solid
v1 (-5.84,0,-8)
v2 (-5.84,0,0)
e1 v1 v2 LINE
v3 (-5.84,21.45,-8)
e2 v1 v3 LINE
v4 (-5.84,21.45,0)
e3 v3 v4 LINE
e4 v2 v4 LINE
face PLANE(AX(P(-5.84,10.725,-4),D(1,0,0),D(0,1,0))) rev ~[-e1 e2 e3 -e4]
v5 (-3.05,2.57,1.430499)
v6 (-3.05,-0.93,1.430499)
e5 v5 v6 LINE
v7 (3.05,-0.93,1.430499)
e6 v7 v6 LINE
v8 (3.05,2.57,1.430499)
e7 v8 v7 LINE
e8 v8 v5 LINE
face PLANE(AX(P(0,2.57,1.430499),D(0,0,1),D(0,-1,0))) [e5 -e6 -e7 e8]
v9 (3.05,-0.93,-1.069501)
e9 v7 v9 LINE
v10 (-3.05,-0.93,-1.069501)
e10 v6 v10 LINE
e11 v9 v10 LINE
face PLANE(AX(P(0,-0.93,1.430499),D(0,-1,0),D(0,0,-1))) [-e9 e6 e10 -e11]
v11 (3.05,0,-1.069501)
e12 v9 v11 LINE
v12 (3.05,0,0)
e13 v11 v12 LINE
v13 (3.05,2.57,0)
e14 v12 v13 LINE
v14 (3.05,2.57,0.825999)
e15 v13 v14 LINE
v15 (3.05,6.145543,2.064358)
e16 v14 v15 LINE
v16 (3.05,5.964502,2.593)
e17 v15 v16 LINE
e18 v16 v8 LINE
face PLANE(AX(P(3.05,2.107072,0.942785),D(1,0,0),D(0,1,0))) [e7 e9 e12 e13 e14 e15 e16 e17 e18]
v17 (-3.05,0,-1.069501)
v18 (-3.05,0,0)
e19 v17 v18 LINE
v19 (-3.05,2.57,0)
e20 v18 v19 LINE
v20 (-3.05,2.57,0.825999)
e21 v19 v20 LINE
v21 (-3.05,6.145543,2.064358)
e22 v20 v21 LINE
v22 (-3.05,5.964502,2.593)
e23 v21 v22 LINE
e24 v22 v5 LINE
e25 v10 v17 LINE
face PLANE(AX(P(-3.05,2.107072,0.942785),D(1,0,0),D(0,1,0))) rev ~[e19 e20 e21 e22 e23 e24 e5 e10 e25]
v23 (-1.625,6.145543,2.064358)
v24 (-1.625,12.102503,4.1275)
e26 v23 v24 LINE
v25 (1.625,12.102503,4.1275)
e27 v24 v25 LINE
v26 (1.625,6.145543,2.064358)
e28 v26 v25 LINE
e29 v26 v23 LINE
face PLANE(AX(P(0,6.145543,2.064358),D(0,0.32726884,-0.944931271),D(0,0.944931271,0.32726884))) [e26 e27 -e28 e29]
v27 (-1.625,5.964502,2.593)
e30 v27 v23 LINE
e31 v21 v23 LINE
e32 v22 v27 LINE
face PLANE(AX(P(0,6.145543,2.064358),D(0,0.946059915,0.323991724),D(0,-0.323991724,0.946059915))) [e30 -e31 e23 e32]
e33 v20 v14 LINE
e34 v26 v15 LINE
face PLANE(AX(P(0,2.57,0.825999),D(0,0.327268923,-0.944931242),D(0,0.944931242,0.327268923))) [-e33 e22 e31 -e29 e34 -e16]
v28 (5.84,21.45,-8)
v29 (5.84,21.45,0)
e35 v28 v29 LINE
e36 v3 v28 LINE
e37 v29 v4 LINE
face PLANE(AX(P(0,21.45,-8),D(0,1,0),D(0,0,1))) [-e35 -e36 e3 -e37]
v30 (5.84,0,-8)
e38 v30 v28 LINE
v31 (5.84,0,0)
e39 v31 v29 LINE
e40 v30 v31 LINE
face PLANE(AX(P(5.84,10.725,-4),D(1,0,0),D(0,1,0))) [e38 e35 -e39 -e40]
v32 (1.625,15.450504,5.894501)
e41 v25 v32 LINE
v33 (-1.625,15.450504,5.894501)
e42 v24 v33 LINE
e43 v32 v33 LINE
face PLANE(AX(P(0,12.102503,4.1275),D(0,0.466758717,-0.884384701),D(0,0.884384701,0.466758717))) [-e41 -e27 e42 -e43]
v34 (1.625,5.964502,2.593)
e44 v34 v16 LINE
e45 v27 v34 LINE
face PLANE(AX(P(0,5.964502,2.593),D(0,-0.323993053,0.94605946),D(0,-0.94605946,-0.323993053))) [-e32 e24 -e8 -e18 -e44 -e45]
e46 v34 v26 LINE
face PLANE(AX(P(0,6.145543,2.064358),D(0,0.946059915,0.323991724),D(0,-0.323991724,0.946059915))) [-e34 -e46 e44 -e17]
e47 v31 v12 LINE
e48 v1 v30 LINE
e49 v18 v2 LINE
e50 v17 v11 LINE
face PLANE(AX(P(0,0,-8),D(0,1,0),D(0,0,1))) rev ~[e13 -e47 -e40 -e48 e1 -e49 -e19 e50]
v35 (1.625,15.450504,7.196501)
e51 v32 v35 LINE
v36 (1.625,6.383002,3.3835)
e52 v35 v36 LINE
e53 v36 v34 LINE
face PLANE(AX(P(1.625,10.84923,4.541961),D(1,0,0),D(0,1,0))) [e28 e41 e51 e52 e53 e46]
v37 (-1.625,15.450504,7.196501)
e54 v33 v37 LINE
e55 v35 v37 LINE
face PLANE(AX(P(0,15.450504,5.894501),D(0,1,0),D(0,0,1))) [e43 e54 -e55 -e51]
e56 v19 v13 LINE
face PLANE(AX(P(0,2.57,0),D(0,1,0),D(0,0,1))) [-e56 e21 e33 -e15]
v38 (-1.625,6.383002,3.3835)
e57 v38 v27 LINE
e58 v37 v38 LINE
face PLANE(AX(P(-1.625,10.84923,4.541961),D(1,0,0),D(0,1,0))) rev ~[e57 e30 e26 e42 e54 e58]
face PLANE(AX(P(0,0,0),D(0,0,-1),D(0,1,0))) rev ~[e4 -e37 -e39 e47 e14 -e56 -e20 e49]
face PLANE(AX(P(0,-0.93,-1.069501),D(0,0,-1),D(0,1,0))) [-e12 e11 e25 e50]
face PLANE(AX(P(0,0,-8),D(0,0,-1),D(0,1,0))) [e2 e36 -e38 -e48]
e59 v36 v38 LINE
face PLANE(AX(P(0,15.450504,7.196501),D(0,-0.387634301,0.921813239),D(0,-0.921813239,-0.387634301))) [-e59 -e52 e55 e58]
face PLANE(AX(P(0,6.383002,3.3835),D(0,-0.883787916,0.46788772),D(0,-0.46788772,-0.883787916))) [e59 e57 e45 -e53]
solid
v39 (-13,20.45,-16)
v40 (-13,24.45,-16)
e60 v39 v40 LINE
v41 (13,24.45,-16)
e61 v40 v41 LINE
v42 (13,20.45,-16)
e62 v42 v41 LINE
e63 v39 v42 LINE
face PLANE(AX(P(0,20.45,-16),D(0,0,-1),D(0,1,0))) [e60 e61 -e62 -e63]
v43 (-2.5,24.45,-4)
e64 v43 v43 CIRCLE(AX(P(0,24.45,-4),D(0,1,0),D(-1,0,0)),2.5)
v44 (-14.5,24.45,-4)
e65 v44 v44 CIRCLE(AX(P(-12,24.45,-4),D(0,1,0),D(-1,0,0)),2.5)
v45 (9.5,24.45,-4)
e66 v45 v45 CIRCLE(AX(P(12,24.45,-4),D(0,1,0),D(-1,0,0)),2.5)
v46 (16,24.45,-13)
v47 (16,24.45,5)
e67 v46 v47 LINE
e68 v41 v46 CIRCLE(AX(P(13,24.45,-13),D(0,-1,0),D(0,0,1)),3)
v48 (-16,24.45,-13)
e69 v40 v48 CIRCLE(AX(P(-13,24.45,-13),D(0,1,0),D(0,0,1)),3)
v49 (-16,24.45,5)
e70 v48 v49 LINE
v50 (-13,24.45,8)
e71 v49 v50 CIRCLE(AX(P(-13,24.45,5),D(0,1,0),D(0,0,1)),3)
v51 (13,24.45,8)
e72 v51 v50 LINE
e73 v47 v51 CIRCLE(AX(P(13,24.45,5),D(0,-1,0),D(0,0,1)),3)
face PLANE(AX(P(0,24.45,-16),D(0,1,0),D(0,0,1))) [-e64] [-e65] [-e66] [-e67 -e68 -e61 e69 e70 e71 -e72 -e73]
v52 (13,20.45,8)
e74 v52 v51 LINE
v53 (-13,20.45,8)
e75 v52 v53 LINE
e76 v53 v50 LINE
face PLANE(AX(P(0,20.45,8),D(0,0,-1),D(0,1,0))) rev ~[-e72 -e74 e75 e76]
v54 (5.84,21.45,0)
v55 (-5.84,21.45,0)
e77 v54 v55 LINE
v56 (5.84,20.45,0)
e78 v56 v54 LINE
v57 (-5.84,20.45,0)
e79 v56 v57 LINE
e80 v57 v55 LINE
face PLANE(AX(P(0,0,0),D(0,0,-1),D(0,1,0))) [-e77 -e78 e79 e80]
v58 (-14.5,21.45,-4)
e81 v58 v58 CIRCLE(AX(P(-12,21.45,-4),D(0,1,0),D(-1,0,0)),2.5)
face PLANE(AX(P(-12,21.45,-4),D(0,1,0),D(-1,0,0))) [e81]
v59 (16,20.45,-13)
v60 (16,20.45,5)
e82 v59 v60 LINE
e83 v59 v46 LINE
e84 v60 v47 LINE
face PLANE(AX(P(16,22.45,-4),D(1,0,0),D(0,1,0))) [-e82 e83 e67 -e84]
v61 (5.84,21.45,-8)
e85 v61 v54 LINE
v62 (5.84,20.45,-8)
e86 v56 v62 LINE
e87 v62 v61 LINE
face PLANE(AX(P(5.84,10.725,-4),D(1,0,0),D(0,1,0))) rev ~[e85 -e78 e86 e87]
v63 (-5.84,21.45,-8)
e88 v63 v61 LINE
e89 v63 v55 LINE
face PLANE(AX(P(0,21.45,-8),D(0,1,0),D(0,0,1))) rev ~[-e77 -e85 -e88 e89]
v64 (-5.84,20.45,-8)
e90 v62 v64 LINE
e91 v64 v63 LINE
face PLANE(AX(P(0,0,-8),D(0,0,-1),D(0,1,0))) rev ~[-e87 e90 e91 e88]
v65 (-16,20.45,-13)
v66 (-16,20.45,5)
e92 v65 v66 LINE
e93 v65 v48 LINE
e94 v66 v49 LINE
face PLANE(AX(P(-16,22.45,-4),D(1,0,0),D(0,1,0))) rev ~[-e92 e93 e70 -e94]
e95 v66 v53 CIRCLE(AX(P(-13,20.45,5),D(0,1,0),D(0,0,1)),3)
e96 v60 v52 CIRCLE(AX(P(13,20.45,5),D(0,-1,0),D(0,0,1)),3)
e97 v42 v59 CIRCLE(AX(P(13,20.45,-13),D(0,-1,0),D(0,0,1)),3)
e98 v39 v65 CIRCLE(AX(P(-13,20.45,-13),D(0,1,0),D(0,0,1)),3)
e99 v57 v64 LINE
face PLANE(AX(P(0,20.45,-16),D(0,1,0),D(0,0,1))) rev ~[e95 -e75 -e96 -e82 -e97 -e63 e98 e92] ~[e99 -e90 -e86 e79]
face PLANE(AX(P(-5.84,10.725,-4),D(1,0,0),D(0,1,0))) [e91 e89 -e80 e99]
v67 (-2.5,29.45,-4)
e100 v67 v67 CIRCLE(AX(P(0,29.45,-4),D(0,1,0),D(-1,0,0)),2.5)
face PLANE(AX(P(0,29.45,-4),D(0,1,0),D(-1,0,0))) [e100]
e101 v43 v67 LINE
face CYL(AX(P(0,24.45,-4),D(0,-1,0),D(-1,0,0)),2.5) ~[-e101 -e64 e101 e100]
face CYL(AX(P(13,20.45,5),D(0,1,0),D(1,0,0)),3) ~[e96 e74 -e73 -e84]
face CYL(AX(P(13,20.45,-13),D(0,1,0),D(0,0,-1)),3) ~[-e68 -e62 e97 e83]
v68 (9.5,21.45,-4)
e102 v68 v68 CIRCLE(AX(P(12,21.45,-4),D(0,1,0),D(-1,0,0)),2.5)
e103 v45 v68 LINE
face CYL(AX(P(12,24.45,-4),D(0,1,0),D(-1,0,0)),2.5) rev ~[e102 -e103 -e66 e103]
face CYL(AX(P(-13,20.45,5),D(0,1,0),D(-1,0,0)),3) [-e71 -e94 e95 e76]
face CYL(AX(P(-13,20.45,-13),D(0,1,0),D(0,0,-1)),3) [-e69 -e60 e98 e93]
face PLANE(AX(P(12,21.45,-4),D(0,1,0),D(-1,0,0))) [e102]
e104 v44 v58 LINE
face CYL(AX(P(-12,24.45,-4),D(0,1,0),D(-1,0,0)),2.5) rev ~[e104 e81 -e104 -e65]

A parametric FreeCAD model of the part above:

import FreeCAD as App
import Part
import Sketcher
from FreeCAD import Vector


def edges_at(feature, points):
    """Names of the edges that pass closest to the given points."""
    edges = feature.Shape.Edges
    near = lambda p: min(range(len(edges)), key=lambda i: edges[i].distToShape(Part.Vertex(*p))[0])
    return sorted({f"Edge{near(p) + 1}" for p in points})

doc = App.newDocument("Part")
body = doc.addObject("PartDesign::Body", "Body")

sketch1 = body.newObject("Sketcher::SketchObject", "Sketch")
sketch1.AttachmentSupport = (doc.getObject("YZ_Plane"), [""])
sketch1.MapMode = "FlatFace"
sketch1.addGeometry(Part.LineSegment(Vector(0, 0, 0), Vector(0, -8, 0)), False)
sketch1.addGeometry(Part.LineSegment(Vector(0, -8, 0), Vector(21, -8, 0)), False)
sketch1.addGeometry(Part.LineSegment(Vector(21, -8, 0), Vector(21, 0, 0)), False)
sketch1.addGeometry(Part.LineSegment(Vector(21, 0, 0), Vector(0, 0, 0)), False)
sketch1.addConstraint(Sketcher.Constraint("Coincident", 0, 2, 1, 1))
sketch1.addConstraint(Sketcher.Constraint("Coincident", 1, 2, 2, 1))
sketch1.addConstraint(Sketcher.Constraint("Coincident", 2, 2, 3, 1))
sketch1.addConstraint(Sketcher.Constraint("Coincident", 3, 2, 0, 1))
sketch1.addConstraint(Sketcher.Constraint("Vertical", 0))
sketch1.addConstraint(Sketcher.Constraint("Horizontal", 1))
sketch1.addConstraint(Sketcher.Constraint("Vertical", 2))
sketch1.addConstraint(Sketcher.Constraint("Horizontal", 3))
sketch1.addConstraint(Sketcher.Constraint("Coincident", 3, 2, -1, 1))
sketch1.addConstraint(Sketcher.Constraint("DistanceY", 0, 2, 0, 1, 8.0))
sketch1.addConstraint(Sketcher.Constraint("DistanceX", 1, 1, 1, 2, 21.45))
pad1 = body.newObject("PartDesign::Pad", "Pad")
pad1.Profile = sketch1
pad1.Type = "TwoLengths"
pad1.Length = 5.84
pad1.Length2 = 5.84

sketch2 = body.newObject("Sketcher::SketchObject", "Sketch001")
sketch2.AttachmentSupport = (doc.getObject("YZ_Plane"), [""])
sketch2.MapMode = "FlatFace"
sketch2.addGeometry(Part.LineSegment(Vector(-0.9, -1.1, 0), Vector(0, -1.1, 0)), False)
sketch2.addGeometry(Part.LineSegment(Vector(0, -1.1, 0), Vector(0, 0, 0)), False)
sketch2.addGeometry(Part.LineSegment(Vector(0, 0, 0), Vector(2.6, 0, 0)), False)
sketch2.addGeometry(Part.LineSegment(Vector(2.6, 0, 0), Vector(2.6, 0.8, 0)), False)
sketch2.addGeometry(Part.LineSegment(Vector(2.6, 0.8, 0), Vector(6.1, 2.1, 0)), False)
sketch2.addGeometry(Part.LineSegment(Vector(6.1, 2.1, 0), Vector(6, 2.6, 0)), False)
sketch2.addGeometry(Part.LineSegment(Vector(6, 2.6, 0), Vector(2.6, 1.4, 0)), False)
sketch2.addGeometry(Part.LineSegment(Vector(2.6, 1.4, 0), Vector(-0.9, 1.4, 0)), False)
sketch2.addGeometry(Part.LineSegment(Vector(-0.9, 1.4, 0), Vector(-0.9, -1.1, 0)), False)
sketch2.addConstraint(Sketcher.Constraint("Coincident", 0, 2, 1, 1))
sketch2.addConstraint(Sketcher.Constraint("Coincident", 1, 2, 2, 1))
sketch2.addConstraint(Sketcher.Constraint("Coincident", 2, 2, 3, 1))
sketch2.addConstraint(Sketcher.Constraint("Coincident", 3, 2, 4, 1))
sketch2.addConstraint(Sketcher.Constraint("Coincident", 4, 2, 5, 1))
sketch2.addConstraint(Sketcher.Constraint("Coincident", 5, 2, 6, 1))
sketch2.addConstraint(Sketcher.Constraint("Coincident", 6, 2, 7, 1))
sketch2.addConstraint(Sketcher.Constraint("Coincident", 7, 2, 8, 1))
sketch2.addConstraint(Sketcher.Constraint("Coincident", 8, 2, 0, 1))
sketch2.addConstraint(Sketcher.Constraint("Horizontal", 0))
sketch2.addConstraint(Sketcher.Constraint("Vertical", 1))
sketch2.addConstraint(Sketcher.Constraint("Horizontal", 2))
sketch2.addConstraint(Sketcher.Constraint("Vertical", 3))
sketch2.addConstraint(Sketcher.Constraint("Horizontal", 7))
sketch2.addConstraint(Sketcher.Constraint("Vertical", 8))
sketch2.addConstraint(Sketcher.Constraint("Coincident", 1, 2, -1, 1))
sketch2.addConstraint(Sketcher.Constraint("Perpendicular", 5, 6))
sketch2.addConstraint(Sketcher.Constraint("Vertical", 3, 2, 6, 2))
sketch2.addConstraint(Sketcher.Constraint("DistanceX", 7, 2, 7, 1, 3.5))
sketch2.addConstraint(Sketcher.Constraint("DistanceY", 8, 2, 8, 1, 2.5))
sketch2.addConstraint(Sketcher.Constraint("DistanceX", 0, 1, 0, 2, 0.93))
sketch2.addConstraint(Sketcher.Constraint("DistanceY", 3, 1, 3, 2, 0.825999))
sketch2.addConstraint(Sketcher.Constraint("DistanceY", 1, 1, 1, 2, 1.069501))
sketch2.addConstraint(Sketcher.Constraint("DistanceY", -1, 1, 5, 2, 2.593))
sketch2.addConstraint(Sketcher.Constraint("Distance", 4, 3.783919))
sketch2.addConstraint(Sketcher.Constraint("DistanceY", 3, 2, 4, 2, 1.238359))
pad2 = body.newObject("PartDesign::Pad", "Pad001")
pad2.Profile = sketch2
pad2.Type = "TwoLengths"
pad2.Length = 3.05
pad2.Length2 = 3.05

sketch3 = body.newObject("Sketcher::SketchObject", "Sketch002")
sketch3.AttachmentSupport = (doc.getObject("YZ_Plane"), [""])
sketch3.MapMode = "FlatFace"
sketch3.addGeometry(Part.LineSegment(Vector(6.4, 3.4, 0), Vector(6, 2.6, 0)), False)
sketch3.addGeometry(Part.LineSegment(Vector(6, 2.6, 0), Vector(6.1, 2.1, 0)), False)
sketch3.addGeometry(Part.LineSegment(Vector(6.1, 2.1, 0), Vector(12.1, 4.1, 0)), False)
sketch3.addGeometry(Part.LineSegment(Vector(12.1, 4.1, 0), Vector(15.5, 5.9, 0)), False)
sketch3.addGeometry(Part.LineSegment(Vector(15.5, 5.9, 0), Vector(15.5, 7.2, 0)), False)
sketch3.addGeometry(Part.LineSegment(Vector(15.5, 7.2, 0), Vector(6.4, 3.4, 0)), False)
sketch3.addConstraint(Sketcher.Constraint("Coincident", 0, 2, 1, 1))
sketch3.addConstraint(Sketcher.Constraint("Coincident", 1, 2, 2, 1))
sketch3.addConstraint(Sketcher.Constraint("Coincident", 2, 2, 3, 1))
sketch3.addConstraint(Sketcher.Constraint("Coincident", 3, 2, 4, 1))
sketch3.addConstraint(Sketcher.Constraint("Coincident", 4, 2, 5, 1))
sketch3.addConstraint(Sketcher.Constraint("Coincident", 5, 2, 0, 1))
sketch3.addConstraint(Sketcher.Constraint("Vertical", 4))
sketch3.addConstraint(Sketcher.Constraint("DistanceY", 4, 1, 4, 2, 1.302))
sketch3.addConstraint(Sketcher.Constraint("DistanceY", -1, 1, 0, 2, 2.593))
sketch3.addConstraint(Sketcher.Constraint("DistanceX", 0, 2, 2, 2, 6.138001))
sketch3.addConstraint(Sketcher.Constraint("DistanceX", 2, 2, 3, 2, 3.348001))
sketch3.addConstraint(Sketcher.Constraint("DistanceY", 2, 2, 3, 2, 1.767001))
sketch3.addConstraint(Sketcher.Constraint("DistanceY", 5, 2, 2, 2, 0.744))
sketch3.addConstraint(Sketcher.Constraint("DistanceY", -1, 1, 2, 2, 4.1275))
sketch3.addConstraint(Sketcher.Constraint("DistanceX", 0, 2, 5, 2, 0.4185))
sketch3.addConstraint(Sketcher.Constraint("Distance", 2, 6.30412))
sketch3.addConstraint(Sketcher.Constraint("DistanceX", 0, 2, 1, 2, 0.181041))
sketch3.addConstraint(Sketcher.Constraint("DistanceX", -1, 1, 0, 2, 5.964502))
pad3 = body.newObject("PartDesign::Pad", "Pad002")
pad3.Profile = sketch3
pad3.Type = "TwoLengths"
pad3.Length = 1.625
pad3.Length2 = 1.625
body2 = doc.addObject("PartDesign::Body", "Body001")

sketch4 = body2.newObject("Sketcher::SketchObject", "Sketch003")
sketch4.AttachmentSupport = (doc.getObject("YZ_Plane001"), [""])
sketch4.MapMode = "FlatFace"
sketch4.addGeometry(Part.LineSegment(Vector(20.4, 8, 0), Vector(20.4, -16, 0)), False)
sketch4.addGeometry(Part.LineSegment(Vector(20.4, -16, 0), Vector(24.4, -16, 0)), False)
sketch4.addGeometry(Part.LineSegment(Vector(24.4, -16, 0), Vector(24.4, 8, 0)), False)
sketch4.addGeometry(Part.LineSegment(Vector(24.4, 8, 0), Vector(20.4, 8, 0)), False)
sketch4.addConstraint(Sketcher.Constraint("Coincident", 0, 2, 1, 1))
sketch4.addConstraint(Sketcher.Constraint("Coincident", 1, 2, 2, 1))
sketch4.addConstraint(Sketcher.Constraint("Coincident", 2, 2, 3, 1))
sketch4.addConstraint(Sketcher.Constraint("Coincident", 3, 2, 0, 1))
sketch4.addConstraint(Sketcher.Constraint("Vertical", 0))
sketch4.addConstraint(Sketcher.Constraint("Horizontal", 1))
sketch4.addConstraint(Sketcher.Constraint("Vertical", 2))
sketch4.addConstraint(Sketcher.Constraint("Horizontal", 3))
sketch4.addConstraint(Sketcher.Constraint("DistanceX", 1, 1, 1, 2, 4.0))
sketch4.addConstraint(Sketcher.Constraint("DistanceY", 0, 2, 0, 1, 24.0))
sketch4.addConstraint(Sketcher.Constraint("DistanceY", 0, 2, -1, 1, 16.0))
sketch4.addConstraint(Sketcher.Constraint("DistanceX", -1, 1, 0, 2, 20.45))
pad4 = body2.newObject("PartDesign::Pad", "Pad003")
pad4.Profile = sketch4
pad4.Type = "TwoLengths"
pad4.Length = 16
pad4.Length2 = 16
doc.recompute()

body3 = doc.addObject("PartDesign::Body", "Body002")
body3.BaseFeature = body
boolean = body2.newObject("PartDesign::Boolean", "Boolean")
boolean.Type = "Cut"
boolean.addObjects([body3])
doc.recompute()

sketch5 = body2.newObject("Sketcher::SketchObject", "Sketch004")
sketch5.AttachmentSupport = (doc.getObject("XZ_Plane001"), [""])
sketch5.MapMode = "FlatFace"
sketch5.AttachmentOffset = App.Placement(Vector(0, 0, -24.45), App.Rotation())
sketch5.addGeometry(Part.Circle(Vector(12, -4, 0), Vector(0, 0, 1), 2.5), False)
sketch5.addGeometry(Part.Circle(Vector(-12, -4, 0), Vector(0, 0, 1), 2.5), False)
sketch5.addConstraint(Sketcher.Constraint("Equal", 0, 1))
sketch5.addConstraint(Sketcher.Constraint("Symmetric", 0, 3, 1, 3, -2))
sketch5.addConstraint(Sketcher.Constraint("Diameter", 0, 5.0))
sketch5.addConstraint(Sketcher.Constraint("DistanceX", -1, 1, 0, 3, 12.0))
sketch5.addConstraint(Sketcher.Constraint("DistanceY", 0, 3, -1, 1, 4.0))
pocket1 = body2.newObject("PartDesign::Pocket", "Pocket")
pocket1.Profile = sketch5
pocket1.Length = 3
pocket1.Reversed = True

sketch6 = body2.newObject("Sketcher::SketchObject", "Sketch005")
sketch6.AttachmentSupport = (doc.getObject("XZ_Plane001"), [""])
sketch6.MapMode = "FlatFace"
sketch6.AttachmentOffset = App.Placement(Vector(0, 0, -24.45), App.Rotation())
sketch6.addGeometry(Part.Circle(Vector(0, -4, 0), Vector(0, 0, 1), 2.5), False)
sketch6.addConstraint(Sketcher.Constraint("PointOnObject", 0, 3, -2))
sketch6.addConstraint(Sketcher.Constraint("Diameter", 0, 5.0))
sketch6.addConstraint(Sketcher.Constraint("DistanceY", 0, 3, -1, 1, 4.0))
pad5 = body2.newObject("PartDesign::Pad", "Pad004")
pad5.Profile = sketch6
pad5.Length = 5
pad5.Reversed = True
doc.recompute()

fillet = body2.newObject("PartDesign::Fillet", "Fillet")
fillet.Base = (pad5, edges_at(pad5, [
    (-16, 22.45, 8),
    (-16, 22.45, -16),
    (16, 22.45, -16),
    (16, 22.45, 8),
]))
fillet.Radius = 3

doc.recompute()
